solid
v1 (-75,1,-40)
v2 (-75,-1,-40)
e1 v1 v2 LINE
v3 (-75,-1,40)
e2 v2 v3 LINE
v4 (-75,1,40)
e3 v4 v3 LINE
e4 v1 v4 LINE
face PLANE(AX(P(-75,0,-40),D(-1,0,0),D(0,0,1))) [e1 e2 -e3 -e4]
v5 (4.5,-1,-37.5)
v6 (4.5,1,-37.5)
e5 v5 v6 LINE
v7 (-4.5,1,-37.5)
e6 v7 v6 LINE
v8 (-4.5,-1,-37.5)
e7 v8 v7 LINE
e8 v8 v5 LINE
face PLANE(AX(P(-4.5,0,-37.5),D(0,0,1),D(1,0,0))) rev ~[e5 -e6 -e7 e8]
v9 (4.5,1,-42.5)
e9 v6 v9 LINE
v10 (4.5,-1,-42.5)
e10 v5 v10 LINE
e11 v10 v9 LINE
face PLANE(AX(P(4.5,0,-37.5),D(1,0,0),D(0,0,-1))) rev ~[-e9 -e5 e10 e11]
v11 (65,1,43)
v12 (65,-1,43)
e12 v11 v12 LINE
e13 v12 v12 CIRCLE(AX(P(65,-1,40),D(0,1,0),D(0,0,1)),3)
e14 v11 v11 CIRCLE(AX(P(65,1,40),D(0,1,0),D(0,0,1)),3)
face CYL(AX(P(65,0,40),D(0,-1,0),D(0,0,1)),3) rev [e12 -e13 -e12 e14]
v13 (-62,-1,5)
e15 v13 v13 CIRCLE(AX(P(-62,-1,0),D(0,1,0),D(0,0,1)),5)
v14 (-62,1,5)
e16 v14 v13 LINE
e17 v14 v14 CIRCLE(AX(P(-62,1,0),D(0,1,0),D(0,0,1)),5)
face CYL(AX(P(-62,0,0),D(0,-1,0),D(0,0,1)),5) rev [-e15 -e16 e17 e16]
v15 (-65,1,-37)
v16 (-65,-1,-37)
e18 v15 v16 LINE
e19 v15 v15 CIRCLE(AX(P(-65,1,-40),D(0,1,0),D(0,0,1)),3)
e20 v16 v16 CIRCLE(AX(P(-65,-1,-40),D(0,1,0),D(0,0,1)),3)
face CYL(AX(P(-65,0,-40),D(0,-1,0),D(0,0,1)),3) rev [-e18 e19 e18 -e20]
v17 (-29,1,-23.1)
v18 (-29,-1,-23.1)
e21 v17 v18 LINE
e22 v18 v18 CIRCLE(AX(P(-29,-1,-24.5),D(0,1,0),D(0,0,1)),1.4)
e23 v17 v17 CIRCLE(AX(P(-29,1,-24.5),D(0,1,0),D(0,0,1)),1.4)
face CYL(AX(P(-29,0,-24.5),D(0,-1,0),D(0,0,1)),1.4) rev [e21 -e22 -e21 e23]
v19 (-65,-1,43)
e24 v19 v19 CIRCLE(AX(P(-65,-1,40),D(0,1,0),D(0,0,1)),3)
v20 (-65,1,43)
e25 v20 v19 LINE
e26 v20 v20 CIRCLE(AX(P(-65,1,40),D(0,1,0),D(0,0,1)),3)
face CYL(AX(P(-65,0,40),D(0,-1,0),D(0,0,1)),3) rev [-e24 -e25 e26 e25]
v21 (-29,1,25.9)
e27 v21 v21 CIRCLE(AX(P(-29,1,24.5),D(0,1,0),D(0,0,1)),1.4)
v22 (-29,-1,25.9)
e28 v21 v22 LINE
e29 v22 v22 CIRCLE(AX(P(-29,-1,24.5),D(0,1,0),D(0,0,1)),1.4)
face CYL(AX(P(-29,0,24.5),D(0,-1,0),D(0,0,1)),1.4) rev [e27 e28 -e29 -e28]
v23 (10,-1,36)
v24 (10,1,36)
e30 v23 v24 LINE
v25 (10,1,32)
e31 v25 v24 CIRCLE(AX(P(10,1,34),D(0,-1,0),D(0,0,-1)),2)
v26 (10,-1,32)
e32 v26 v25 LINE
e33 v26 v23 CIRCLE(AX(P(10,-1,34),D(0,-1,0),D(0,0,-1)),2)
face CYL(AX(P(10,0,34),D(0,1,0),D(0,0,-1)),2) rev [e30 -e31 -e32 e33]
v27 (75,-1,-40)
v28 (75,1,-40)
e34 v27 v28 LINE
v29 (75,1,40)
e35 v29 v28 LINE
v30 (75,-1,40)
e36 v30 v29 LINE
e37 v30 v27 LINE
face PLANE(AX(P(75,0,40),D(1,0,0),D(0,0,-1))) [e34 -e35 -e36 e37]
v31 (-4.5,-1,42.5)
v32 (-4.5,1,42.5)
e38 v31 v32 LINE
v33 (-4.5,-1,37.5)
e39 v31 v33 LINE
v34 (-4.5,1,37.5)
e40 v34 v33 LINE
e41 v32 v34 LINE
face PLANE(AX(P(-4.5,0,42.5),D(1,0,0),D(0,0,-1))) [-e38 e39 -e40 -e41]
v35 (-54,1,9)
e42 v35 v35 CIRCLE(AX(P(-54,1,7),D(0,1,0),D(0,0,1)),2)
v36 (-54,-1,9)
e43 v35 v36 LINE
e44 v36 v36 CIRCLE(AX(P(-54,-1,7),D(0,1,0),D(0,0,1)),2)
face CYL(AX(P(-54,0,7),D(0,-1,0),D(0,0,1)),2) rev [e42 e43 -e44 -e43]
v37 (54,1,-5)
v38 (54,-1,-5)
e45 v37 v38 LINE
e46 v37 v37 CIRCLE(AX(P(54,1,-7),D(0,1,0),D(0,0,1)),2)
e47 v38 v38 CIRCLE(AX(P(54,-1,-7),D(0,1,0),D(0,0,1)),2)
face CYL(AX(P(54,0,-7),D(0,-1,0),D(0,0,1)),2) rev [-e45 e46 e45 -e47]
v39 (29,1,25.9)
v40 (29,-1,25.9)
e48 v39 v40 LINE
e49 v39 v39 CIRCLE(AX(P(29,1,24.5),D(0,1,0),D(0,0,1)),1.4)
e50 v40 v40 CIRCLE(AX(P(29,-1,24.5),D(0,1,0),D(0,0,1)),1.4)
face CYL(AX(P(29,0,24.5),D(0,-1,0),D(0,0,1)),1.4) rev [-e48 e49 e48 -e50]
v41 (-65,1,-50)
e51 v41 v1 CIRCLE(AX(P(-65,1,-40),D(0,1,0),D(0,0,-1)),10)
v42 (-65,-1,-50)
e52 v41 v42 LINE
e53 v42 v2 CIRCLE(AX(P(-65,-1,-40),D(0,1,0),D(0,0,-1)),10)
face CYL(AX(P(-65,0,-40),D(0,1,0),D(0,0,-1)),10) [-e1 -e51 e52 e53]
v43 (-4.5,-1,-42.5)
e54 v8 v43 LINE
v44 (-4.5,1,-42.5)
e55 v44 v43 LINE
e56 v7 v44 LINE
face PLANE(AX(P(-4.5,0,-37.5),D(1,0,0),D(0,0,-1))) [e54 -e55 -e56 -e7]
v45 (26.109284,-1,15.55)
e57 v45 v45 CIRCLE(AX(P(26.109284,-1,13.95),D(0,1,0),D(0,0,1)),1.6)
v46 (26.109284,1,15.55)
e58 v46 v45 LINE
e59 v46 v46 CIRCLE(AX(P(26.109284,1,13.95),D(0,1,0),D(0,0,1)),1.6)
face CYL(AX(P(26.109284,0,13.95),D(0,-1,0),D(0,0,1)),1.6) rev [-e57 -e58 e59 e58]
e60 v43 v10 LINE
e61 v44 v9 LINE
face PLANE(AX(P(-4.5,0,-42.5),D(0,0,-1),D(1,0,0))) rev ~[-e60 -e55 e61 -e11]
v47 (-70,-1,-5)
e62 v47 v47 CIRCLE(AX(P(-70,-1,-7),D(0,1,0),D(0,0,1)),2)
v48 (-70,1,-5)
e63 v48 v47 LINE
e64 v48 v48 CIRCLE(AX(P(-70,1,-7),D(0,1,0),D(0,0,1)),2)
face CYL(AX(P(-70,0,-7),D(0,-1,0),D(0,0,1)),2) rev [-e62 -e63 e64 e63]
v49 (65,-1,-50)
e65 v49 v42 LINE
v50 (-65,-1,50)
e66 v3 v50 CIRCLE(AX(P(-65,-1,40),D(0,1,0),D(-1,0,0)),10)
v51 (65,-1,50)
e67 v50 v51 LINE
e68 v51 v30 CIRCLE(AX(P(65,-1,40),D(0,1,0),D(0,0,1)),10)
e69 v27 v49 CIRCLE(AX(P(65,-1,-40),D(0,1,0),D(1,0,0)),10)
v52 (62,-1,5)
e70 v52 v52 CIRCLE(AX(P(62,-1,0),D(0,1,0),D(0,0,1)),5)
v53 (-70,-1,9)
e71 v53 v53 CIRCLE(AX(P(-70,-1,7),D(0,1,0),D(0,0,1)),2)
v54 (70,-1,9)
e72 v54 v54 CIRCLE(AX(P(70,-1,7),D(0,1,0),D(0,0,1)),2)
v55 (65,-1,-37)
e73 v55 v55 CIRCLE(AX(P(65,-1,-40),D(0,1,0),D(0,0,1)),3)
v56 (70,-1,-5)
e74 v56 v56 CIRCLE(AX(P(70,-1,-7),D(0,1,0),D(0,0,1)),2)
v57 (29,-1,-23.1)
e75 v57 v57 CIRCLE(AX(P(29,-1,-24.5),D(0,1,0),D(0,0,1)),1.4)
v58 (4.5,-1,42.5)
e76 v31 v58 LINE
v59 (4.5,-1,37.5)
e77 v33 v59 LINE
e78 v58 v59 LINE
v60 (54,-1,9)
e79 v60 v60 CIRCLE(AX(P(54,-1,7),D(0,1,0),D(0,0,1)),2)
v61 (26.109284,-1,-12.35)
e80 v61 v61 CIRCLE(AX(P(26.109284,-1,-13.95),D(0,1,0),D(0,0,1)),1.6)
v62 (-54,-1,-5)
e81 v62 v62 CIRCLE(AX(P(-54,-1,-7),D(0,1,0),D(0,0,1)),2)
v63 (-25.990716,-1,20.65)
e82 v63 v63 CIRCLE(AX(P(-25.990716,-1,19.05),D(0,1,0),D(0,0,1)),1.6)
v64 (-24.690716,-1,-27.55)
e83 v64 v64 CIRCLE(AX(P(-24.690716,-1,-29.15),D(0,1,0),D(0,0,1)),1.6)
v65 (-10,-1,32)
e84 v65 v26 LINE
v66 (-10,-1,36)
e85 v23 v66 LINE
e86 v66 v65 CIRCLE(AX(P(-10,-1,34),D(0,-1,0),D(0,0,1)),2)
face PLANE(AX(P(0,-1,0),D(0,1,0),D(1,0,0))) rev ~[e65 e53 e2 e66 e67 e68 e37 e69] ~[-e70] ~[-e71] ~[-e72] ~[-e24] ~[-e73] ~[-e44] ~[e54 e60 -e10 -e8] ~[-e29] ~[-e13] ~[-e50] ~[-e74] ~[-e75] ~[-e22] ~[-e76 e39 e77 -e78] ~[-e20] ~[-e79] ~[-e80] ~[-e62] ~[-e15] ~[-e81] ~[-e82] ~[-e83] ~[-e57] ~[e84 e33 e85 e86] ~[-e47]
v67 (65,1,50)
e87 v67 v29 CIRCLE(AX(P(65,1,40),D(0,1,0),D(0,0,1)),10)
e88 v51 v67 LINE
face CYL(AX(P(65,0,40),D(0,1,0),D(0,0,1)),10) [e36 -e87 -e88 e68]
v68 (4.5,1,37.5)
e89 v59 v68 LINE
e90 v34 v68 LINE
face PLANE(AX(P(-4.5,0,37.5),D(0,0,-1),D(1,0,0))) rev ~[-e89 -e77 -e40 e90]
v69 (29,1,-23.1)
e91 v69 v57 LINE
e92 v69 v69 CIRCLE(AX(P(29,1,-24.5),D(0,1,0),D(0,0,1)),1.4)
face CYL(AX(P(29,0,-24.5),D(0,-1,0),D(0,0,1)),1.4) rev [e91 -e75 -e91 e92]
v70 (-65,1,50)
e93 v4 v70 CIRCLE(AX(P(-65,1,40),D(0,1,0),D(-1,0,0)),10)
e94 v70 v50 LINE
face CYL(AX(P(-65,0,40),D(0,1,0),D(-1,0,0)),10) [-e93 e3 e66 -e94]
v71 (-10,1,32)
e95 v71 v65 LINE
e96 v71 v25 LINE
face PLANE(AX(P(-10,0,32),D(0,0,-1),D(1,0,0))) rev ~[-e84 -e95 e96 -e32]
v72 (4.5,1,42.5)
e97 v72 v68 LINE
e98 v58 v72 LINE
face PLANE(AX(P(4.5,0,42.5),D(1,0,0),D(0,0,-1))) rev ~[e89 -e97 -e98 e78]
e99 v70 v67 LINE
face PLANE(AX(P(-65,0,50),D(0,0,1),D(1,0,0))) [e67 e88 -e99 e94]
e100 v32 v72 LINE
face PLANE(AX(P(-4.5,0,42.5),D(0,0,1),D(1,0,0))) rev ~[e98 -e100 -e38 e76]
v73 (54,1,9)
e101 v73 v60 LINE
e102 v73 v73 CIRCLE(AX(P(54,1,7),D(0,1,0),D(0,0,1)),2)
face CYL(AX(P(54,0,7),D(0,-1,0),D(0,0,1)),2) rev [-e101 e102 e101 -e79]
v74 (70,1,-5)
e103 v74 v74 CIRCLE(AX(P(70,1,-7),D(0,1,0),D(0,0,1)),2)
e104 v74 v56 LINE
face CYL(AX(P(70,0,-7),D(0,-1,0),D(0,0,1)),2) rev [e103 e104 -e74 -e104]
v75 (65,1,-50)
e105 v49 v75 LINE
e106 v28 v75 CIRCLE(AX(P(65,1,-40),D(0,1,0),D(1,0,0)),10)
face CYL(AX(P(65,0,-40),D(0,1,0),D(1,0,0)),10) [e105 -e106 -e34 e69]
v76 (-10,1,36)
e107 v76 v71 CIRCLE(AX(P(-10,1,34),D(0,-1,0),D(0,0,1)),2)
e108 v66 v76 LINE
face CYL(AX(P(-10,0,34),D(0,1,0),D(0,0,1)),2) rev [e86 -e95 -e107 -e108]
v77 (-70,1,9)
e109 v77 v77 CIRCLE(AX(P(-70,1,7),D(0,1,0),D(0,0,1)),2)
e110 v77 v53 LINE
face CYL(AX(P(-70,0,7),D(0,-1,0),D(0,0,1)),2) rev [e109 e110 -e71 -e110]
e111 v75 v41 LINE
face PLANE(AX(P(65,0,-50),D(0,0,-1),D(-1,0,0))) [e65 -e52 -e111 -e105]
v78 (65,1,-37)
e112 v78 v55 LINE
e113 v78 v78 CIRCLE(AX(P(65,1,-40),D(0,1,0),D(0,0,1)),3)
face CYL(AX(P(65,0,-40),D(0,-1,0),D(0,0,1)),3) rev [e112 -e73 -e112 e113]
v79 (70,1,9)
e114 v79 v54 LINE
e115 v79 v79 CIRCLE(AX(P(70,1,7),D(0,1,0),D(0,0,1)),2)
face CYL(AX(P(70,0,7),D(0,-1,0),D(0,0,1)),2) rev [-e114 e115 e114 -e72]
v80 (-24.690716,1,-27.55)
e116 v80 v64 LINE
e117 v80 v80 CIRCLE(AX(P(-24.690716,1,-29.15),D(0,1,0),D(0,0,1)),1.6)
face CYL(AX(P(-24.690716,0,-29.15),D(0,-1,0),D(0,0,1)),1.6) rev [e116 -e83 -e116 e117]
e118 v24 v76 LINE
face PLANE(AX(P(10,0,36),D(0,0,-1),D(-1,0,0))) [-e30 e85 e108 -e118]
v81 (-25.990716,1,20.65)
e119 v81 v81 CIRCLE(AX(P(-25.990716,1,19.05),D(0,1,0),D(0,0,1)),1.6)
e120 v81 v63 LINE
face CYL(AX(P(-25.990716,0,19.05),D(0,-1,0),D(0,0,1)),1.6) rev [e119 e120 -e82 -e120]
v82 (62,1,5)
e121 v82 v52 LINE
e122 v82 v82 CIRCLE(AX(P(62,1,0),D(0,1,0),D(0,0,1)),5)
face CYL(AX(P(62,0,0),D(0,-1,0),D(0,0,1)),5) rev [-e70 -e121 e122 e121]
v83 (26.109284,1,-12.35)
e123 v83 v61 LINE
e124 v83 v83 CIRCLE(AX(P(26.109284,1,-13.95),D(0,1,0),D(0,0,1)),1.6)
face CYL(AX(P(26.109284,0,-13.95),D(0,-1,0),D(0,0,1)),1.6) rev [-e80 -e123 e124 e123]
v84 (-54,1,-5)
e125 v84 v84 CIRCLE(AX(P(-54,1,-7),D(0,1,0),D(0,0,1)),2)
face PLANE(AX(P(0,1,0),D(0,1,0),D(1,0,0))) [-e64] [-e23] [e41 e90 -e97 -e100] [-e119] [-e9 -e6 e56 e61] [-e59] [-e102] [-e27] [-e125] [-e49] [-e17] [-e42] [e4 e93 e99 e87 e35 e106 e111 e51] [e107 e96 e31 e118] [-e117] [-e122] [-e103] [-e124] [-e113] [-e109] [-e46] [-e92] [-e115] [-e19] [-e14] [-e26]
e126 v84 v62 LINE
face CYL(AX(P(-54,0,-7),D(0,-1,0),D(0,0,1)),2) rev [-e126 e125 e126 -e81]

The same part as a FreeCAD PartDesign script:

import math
import FreeCAD as App
import Part
import Sketcher

V = App.Vector
Q = App.Units.Quantity

doc = App.newDocument("Part")
body = doc.addObject("PartDesign::Body", "Body")

# Sketch on XZ plane
sketch1 = body.newObject("Sketcher::SketchObject", "Sketch")
sketch1.AttachmentSupport = (doc.getObject("XZ_Plane"), [""])
sketch1.MapMode = "FlatFace"
sketch1.addGeometry([
    Part.LineSegment(V(-65, 50, 0), V(65, 50, 0)),  # 0
    Part.ArcOfCircle(Part.Circle(V(65, 40, 0), V(0, 0, 1), 10), math.radians(0), math.radians(90)),  # 1
    Part.LineSegment(V(75, 40, 0), V(75, -40, 0)),  # 2
    Part.ArcOfCircle(Part.Circle(V(65, -40, 0), V(0, 0, 1), 10), math.radians(-90), math.radians(0)),  # 3
    Part.LineSegment(V(65, -50, 0), V(-65, -50, 0)),  # 4
    Part.ArcOfCircle(Part.Circle(V(-65, -40, 0), V(0, 0, 1), 10), math.radians(180), math.radians(270)),  # 5
    Part.LineSegment(V(-75, -40, 0), V(-75, 40, 0)),  # 6
    Part.ArcOfCircle(Part.Circle(V(-65, 40, 0), V(0, 0, 1), 10), math.radians(90), math.radians(180)),  # 7
    Part.Circle(V(-65, 40, 0), V(0, 0, 1), 3),  # 8
    Part.Circle(V(-29, 24.5, 0), V(0, 0, 1), 1.4),  # 9
    Part.Circle(V(-70, 7, 0), V(0, 0, 1), 2),  # 10
    Part.Circle(V(-54, 7, 0), V(0, 0, 1), 2),  # 11
    Part.Circle(V(-26, 19.1, 0), V(0, 0, 1), 1.6),  # 12
    Part.LineSegment(V(4.5, 42.5, 0), V(-4.5, 42.5, 0)),  # 13
    Part.LineSegment(V(-4.5, 42.5, 0), V(-4.5, 37.5, 0)),  # 14
    Part.LineSegment(V(-4.5, 37.5, 0), V(4.5, 37.5, 0)),  # 15
    Part.LineSegment(V(4.5, 37.5, 0), V(4.5, 42.5, 0)),  # 16
    Part.ArcOfCircle(Part.Circle(V(-10, 34, 0), V(0, 0, 1), 2), math.radians(90), math.radians(270)),  # 17
    Part.LineSegment(V(-10, 32, 0), V(10, 32, 0)),  # 18
    Part.ArcOfCircle(Part.Circle(V(10, 34, 0), V(0, 0, 1), 2), math.radians(-90), math.radians(90)),  # 19
    Part.LineSegment(V(10, 36, 0), V(-10, 36, 0)),  # 20
    Part.Circle(V(29, 24.5, 0), V(0, 0, 1), 1.4),  # 21
    Part.Circle(V(65, 40, 0), V(0, 0, 1), 3),  # 22
    Part.Circle(V(26.1, 13.9, 0), V(0, 0, 1), 1.6),  # 23
    Part.Circle(V(54, 7, 0), V(0, 0, 1), 2),  # 24
    Part.Circle(V(70, 7, 0), V(0, 0, 1), 2),  # 25
    Part.Circle(V(-62, 0, 0), V(0, 0, 1), 5),  # 26
    Part.Circle(V(-70, -7, 0), V(0, 0, 1), 2),  # 27
    Part.Circle(V(-54, -7, 0), V(0, 0, 1), 2),  # 28
    Part.Circle(V(-65, -40, 0), V(0, 0, 1), 3),  # 29
    Part.Circle(V(-29, -24.5, 0), V(0, 0, 1), 1.4),  # 30
    Part.Circle(V(-24.7, -29.1, 0), V(0, 0, 1), 1.6),  # 31
    Part.Circle(V(26.1, -13.9, 0), V(0, 0, 1), 1.6),  # 32
    Part.Circle(V(62, 0, 0), V(0, 0, 1), 5),  # 33
    Part.Circle(V(54, -7, 0), V(0, 0, 1), 2),  # 34
    Part.Circle(V(70, -7, 0), V(0, 0, 1), 2),  # 35
    Part.Circle(V(29, -24.5, 0), V(0, 0, 1), 1.4),  # 36
    Part.LineSegment(V(4.5, -37.5, 0), V(-4.5, -37.5, 0)),  # 37
    Part.LineSegment(V(-4.5, -37.5, 0), V(-4.5, -42.5, 0)),  # 38
    Part.LineSegment(V(-4.5, -42.5, 0), V(4.5, -42.5, 0)),  # 39
    Part.LineSegment(V(4.5, -42.5, 0), V(4.5, -37.5, 0)),  # 40
    Part.Circle(V(65, -40, 0), V(0, 0, 1), 3),  # 41
], False)
sketch1.addConstraint([
    Sketcher.Constraint("Tangent", 0, 2, 1, 2),
    Sketcher.Constraint("Tangent", 1, 1, 2, 1),
    Sketcher.Constraint("Tangent", 2, 2, 3, 2),
    Sketcher.Constraint("Tangent", 3, 1, 4, 1),
    Sketcher.Constraint("Tangent", 4, 2, 5, 2),
    Sketcher.Constraint("Tangent", 5, 1, 6, 1),
    Sketcher.Constraint("Tangent", 6, 2, 7, 2),
    Sketcher.Constraint("Tangent", 7, 1, 0, 1),
    Sketcher.Constraint("Coincident", 13, 2, 14, 1),
    Sketcher.Constraint("Coincident", 14, 2, 15, 1),
    Sketcher.Constraint("Coincident", 15, 2, 16, 1),
    Sketcher.Constraint("Coincident", 16, 2, 13, 1),
    Sketcher.Constraint("Tangent", 17, 2, 18, 1),
    Sketcher.Constraint("Tangent", 18, 2, 19, 1),
    Sketcher.Constraint("Tangent", 19, 2, 20, 1),
    Sketcher.Constraint("Tangent", 20, 2, 17, 1),
    Sketcher.Constraint("Coincident", 37, 2, 38, 1),
    Sketcher.Constraint("Coincident", 38, 2, 39, 1),
    Sketcher.Constraint("Coincident", 39, 2, 40, 1),
    Sketcher.Constraint("Coincident", 40, 2, 37, 1),
    Sketcher.Constraint("Horizontal", 0),
    Sketcher.Constraint("Vertical", 2),
    Sketcher.Constraint("Horizontal", 4),
    Sketcher.Constraint("Vertical", 6),
    Sketcher.Constraint("Horizontal", 13),
    Sketcher.Constraint("Vertical", 14),
    Sketcher.Constraint("Horizontal", 15),
    Sketcher.Constraint("Vertical", 16),
    Sketcher.Constraint("Horizontal", 18),
    Sketcher.Constraint("Horizontal", 20),
    Sketcher.Constraint("Horizontal", 37),
    Sketcher.Constraint("Vertical", 38),
    Sketcher.Constraint("Horizontal", 39),
    Sketcher.Constraint("Vertical", 40),
    Sketcher.Constraint("Coincident", 8, 3, 7, 3),
    Sketcher.Constraint("Coincident", 22, 3, 1, 3),
    Sketcher.Constraint("Coincident", 29, 3, 5, 3),
    Sketcher.Constraint("Coincident", 41, 3, 3, 3),
    Sketcher.Constraint("Equal", 1, 3),
    Sketcher.Constraint("Equal", 3, 5),
    Sketcher.Constraint("Equal", 5, 7),
    Sketcher.Constraint("Equal", 10, 11),
    Sketcher.Constraint("Equal", 11, 17),
    Sketcher.Constraint("Equal", 9, 21),
    Sketcher.Constraint("Equal", 8, 22),
    Sketcher.Constraint("Equal", 12, 23),
    Sketcher.Constraint("Equal", 19, 24),
    Sketcher.Constraint("Equal", 24, 25),
    Sketcher.Constraint("Equal", 25, 27),
    Sketcher.Constraint("Equal", 27, 28),
    Sketcher.Constraint("Equal", 22, 29),
    Sketcher.Constraint("Equal", 21, 30),
    Sketcher.Constraint("Equal", 23, 31),
    Sketcher.Constraint("Equal", 31, 32),
    Sketcher.Constraint("Equal", 26, 33),
    Sketcher.Constraint("Equal", 28, 34),
    Sketcher.Constraint("Equal", 34, 35),
    Sketcher.Constraint("Equal", 30, 36),
    Sketcher.Constraint("Equal", 29, 41),
    Sketcher.Constraint("Symmetric", 1, 3, 5, 3, -1, 1),
    Sketcher.Constraint("Symmetric", 25, 3, 27, 3, -1, 1),
    Sketcher.Constraint("Symmetric", 24, 3, 28, 3, -1, 1),
    Sketcher.Constraint("Symmetric", 21, 3, 30, 3, -1, 1),
    Sketcher.Constraint("Symmetric", 26, 3, 33, 3, -1, 1),
    Sketcher.Constraint("Symmetric", 11, 3, 34, 3, -1, 1),
    Sketcher.Constraint("Symmetric", 10, 3, 35, 3, -1, 1),
    Sketcher.Constraint("Symmetric", 9, 3, 36, 3, -1, 1),
    Sketcher.Constraint("Symmetric", 15, 2, 37, 2, -1, 1),
    Sketcher.Constraint("Symmetric", 13, 2, 39, 2, -1, 1),
    Sketcher.Constraint("Symmetric", 9, 3, 21, 3, -2),
    Sketcher.Constraint("Symmetric", 11, 3, 24, 3, -2),
    Sketcher.Constraint("Symmetric", 10, 3, 25, 3, -2),
    Sketcher.Constraint("Symmetric", 23, 3, 32, 3, -1),
    Sketcher.Constraint("PointOnObject", 26, 3, -1),
    Sketcher.Constraint("Horizontal", 10, 3, 11, 3),
    Sketcher.Constraint("Vertical", 14, 2, 37, 2),
    Sketcher.Constraint("Diameter", 8, Q("6 mm")),
    Sketcher.Constraint("Diameter", 10, Q("4 mm")),
    Sketcher.Constraint("Diameter", 26, Q("10 mm")),
    Sketcher.Constraint("Radius", 1, Q("10 mm")),
    Sketcher.Constraint("Diameter", 9, Q("2.8 mm")),
    Sketcher.Constraint("Diameter", 12, Q("3.2 mm")),
    Sketcher.Constraint("DistanceX", 0, 1, 0, 2, Q("130 mm")),
    Sketcher.Constraint("DistanceX", 13, 2, 13, 1, Q("9 mm")),
    Sketcher.Constraint("DistanceX", 18, 1, 18, 2, Q("20 mm")),
    Sketcher.Constraint("DistanceY", 2, 2, 2, 1, Q("80 mm")),
    Sketcher.Constraint("DistanceY", 14, 2, 14, 1, Q("5 mm")),
    Sketcher.Constraint("DistanceX", 9, 3, -1, 1, Q("29 mm")),
    Sketcher.Constraint("DistanceX", 10, 3, -1, 1, Q("70 mm")),
    Sketcher.Constraint("DistanceY", -1, 1, 10, 3, Q("7 mm")),
    Sketcher.Constraint("DistanceX", 11, 3, -1, 1, Q("54 mm")),
    Sketcher.Constraint("DistanceX", 17, 3, -1, 1, Q("10 mm")),
    Sketcher.Constraint("DistanceY", -1, 1, 17, 3, Q("34 mm")),
    Sketcher.Constraint("DistanceX", 26, 3, -1, 1, Q("62 mm")),
    Sketcher.Constraint("DistanceY", 9, 3, 13, 2, Q("18 mm")),
    Sketcher.Constraint("DistanceY", -1, 1, 9, 3, Q("24.5 mm")),
    Sketcher.Constraint("DistanceY", 32, 3, 23, 3, Q("27.9 mm")),
    Sketcher.Constraint("DistanceY", -1, 1, 12, 3, Q("19.05 mm")),
    Sketcher.Constraint("DistanceY", 31, 3, -1, 1, Q("29.15 mm")),
    Sketcher.Constraint("DistanceX", 12, 3, -1, 1, Q("25.990716 mm")),
    Sketcher.Constraint("DistanceX", -1, 1, 23, 3, Q("26.109284 mm")),
    Sketcher.Constraint("DistanceX", 31, 3, -1, 1, Q("24.690716 mm")),
])
pad1 = body.newObject("PartDesign::Pad", "Pad")
pad1.Profile = sketch1
pad1.Length = 2
pad1.Midplane = True

doc.recompute()
